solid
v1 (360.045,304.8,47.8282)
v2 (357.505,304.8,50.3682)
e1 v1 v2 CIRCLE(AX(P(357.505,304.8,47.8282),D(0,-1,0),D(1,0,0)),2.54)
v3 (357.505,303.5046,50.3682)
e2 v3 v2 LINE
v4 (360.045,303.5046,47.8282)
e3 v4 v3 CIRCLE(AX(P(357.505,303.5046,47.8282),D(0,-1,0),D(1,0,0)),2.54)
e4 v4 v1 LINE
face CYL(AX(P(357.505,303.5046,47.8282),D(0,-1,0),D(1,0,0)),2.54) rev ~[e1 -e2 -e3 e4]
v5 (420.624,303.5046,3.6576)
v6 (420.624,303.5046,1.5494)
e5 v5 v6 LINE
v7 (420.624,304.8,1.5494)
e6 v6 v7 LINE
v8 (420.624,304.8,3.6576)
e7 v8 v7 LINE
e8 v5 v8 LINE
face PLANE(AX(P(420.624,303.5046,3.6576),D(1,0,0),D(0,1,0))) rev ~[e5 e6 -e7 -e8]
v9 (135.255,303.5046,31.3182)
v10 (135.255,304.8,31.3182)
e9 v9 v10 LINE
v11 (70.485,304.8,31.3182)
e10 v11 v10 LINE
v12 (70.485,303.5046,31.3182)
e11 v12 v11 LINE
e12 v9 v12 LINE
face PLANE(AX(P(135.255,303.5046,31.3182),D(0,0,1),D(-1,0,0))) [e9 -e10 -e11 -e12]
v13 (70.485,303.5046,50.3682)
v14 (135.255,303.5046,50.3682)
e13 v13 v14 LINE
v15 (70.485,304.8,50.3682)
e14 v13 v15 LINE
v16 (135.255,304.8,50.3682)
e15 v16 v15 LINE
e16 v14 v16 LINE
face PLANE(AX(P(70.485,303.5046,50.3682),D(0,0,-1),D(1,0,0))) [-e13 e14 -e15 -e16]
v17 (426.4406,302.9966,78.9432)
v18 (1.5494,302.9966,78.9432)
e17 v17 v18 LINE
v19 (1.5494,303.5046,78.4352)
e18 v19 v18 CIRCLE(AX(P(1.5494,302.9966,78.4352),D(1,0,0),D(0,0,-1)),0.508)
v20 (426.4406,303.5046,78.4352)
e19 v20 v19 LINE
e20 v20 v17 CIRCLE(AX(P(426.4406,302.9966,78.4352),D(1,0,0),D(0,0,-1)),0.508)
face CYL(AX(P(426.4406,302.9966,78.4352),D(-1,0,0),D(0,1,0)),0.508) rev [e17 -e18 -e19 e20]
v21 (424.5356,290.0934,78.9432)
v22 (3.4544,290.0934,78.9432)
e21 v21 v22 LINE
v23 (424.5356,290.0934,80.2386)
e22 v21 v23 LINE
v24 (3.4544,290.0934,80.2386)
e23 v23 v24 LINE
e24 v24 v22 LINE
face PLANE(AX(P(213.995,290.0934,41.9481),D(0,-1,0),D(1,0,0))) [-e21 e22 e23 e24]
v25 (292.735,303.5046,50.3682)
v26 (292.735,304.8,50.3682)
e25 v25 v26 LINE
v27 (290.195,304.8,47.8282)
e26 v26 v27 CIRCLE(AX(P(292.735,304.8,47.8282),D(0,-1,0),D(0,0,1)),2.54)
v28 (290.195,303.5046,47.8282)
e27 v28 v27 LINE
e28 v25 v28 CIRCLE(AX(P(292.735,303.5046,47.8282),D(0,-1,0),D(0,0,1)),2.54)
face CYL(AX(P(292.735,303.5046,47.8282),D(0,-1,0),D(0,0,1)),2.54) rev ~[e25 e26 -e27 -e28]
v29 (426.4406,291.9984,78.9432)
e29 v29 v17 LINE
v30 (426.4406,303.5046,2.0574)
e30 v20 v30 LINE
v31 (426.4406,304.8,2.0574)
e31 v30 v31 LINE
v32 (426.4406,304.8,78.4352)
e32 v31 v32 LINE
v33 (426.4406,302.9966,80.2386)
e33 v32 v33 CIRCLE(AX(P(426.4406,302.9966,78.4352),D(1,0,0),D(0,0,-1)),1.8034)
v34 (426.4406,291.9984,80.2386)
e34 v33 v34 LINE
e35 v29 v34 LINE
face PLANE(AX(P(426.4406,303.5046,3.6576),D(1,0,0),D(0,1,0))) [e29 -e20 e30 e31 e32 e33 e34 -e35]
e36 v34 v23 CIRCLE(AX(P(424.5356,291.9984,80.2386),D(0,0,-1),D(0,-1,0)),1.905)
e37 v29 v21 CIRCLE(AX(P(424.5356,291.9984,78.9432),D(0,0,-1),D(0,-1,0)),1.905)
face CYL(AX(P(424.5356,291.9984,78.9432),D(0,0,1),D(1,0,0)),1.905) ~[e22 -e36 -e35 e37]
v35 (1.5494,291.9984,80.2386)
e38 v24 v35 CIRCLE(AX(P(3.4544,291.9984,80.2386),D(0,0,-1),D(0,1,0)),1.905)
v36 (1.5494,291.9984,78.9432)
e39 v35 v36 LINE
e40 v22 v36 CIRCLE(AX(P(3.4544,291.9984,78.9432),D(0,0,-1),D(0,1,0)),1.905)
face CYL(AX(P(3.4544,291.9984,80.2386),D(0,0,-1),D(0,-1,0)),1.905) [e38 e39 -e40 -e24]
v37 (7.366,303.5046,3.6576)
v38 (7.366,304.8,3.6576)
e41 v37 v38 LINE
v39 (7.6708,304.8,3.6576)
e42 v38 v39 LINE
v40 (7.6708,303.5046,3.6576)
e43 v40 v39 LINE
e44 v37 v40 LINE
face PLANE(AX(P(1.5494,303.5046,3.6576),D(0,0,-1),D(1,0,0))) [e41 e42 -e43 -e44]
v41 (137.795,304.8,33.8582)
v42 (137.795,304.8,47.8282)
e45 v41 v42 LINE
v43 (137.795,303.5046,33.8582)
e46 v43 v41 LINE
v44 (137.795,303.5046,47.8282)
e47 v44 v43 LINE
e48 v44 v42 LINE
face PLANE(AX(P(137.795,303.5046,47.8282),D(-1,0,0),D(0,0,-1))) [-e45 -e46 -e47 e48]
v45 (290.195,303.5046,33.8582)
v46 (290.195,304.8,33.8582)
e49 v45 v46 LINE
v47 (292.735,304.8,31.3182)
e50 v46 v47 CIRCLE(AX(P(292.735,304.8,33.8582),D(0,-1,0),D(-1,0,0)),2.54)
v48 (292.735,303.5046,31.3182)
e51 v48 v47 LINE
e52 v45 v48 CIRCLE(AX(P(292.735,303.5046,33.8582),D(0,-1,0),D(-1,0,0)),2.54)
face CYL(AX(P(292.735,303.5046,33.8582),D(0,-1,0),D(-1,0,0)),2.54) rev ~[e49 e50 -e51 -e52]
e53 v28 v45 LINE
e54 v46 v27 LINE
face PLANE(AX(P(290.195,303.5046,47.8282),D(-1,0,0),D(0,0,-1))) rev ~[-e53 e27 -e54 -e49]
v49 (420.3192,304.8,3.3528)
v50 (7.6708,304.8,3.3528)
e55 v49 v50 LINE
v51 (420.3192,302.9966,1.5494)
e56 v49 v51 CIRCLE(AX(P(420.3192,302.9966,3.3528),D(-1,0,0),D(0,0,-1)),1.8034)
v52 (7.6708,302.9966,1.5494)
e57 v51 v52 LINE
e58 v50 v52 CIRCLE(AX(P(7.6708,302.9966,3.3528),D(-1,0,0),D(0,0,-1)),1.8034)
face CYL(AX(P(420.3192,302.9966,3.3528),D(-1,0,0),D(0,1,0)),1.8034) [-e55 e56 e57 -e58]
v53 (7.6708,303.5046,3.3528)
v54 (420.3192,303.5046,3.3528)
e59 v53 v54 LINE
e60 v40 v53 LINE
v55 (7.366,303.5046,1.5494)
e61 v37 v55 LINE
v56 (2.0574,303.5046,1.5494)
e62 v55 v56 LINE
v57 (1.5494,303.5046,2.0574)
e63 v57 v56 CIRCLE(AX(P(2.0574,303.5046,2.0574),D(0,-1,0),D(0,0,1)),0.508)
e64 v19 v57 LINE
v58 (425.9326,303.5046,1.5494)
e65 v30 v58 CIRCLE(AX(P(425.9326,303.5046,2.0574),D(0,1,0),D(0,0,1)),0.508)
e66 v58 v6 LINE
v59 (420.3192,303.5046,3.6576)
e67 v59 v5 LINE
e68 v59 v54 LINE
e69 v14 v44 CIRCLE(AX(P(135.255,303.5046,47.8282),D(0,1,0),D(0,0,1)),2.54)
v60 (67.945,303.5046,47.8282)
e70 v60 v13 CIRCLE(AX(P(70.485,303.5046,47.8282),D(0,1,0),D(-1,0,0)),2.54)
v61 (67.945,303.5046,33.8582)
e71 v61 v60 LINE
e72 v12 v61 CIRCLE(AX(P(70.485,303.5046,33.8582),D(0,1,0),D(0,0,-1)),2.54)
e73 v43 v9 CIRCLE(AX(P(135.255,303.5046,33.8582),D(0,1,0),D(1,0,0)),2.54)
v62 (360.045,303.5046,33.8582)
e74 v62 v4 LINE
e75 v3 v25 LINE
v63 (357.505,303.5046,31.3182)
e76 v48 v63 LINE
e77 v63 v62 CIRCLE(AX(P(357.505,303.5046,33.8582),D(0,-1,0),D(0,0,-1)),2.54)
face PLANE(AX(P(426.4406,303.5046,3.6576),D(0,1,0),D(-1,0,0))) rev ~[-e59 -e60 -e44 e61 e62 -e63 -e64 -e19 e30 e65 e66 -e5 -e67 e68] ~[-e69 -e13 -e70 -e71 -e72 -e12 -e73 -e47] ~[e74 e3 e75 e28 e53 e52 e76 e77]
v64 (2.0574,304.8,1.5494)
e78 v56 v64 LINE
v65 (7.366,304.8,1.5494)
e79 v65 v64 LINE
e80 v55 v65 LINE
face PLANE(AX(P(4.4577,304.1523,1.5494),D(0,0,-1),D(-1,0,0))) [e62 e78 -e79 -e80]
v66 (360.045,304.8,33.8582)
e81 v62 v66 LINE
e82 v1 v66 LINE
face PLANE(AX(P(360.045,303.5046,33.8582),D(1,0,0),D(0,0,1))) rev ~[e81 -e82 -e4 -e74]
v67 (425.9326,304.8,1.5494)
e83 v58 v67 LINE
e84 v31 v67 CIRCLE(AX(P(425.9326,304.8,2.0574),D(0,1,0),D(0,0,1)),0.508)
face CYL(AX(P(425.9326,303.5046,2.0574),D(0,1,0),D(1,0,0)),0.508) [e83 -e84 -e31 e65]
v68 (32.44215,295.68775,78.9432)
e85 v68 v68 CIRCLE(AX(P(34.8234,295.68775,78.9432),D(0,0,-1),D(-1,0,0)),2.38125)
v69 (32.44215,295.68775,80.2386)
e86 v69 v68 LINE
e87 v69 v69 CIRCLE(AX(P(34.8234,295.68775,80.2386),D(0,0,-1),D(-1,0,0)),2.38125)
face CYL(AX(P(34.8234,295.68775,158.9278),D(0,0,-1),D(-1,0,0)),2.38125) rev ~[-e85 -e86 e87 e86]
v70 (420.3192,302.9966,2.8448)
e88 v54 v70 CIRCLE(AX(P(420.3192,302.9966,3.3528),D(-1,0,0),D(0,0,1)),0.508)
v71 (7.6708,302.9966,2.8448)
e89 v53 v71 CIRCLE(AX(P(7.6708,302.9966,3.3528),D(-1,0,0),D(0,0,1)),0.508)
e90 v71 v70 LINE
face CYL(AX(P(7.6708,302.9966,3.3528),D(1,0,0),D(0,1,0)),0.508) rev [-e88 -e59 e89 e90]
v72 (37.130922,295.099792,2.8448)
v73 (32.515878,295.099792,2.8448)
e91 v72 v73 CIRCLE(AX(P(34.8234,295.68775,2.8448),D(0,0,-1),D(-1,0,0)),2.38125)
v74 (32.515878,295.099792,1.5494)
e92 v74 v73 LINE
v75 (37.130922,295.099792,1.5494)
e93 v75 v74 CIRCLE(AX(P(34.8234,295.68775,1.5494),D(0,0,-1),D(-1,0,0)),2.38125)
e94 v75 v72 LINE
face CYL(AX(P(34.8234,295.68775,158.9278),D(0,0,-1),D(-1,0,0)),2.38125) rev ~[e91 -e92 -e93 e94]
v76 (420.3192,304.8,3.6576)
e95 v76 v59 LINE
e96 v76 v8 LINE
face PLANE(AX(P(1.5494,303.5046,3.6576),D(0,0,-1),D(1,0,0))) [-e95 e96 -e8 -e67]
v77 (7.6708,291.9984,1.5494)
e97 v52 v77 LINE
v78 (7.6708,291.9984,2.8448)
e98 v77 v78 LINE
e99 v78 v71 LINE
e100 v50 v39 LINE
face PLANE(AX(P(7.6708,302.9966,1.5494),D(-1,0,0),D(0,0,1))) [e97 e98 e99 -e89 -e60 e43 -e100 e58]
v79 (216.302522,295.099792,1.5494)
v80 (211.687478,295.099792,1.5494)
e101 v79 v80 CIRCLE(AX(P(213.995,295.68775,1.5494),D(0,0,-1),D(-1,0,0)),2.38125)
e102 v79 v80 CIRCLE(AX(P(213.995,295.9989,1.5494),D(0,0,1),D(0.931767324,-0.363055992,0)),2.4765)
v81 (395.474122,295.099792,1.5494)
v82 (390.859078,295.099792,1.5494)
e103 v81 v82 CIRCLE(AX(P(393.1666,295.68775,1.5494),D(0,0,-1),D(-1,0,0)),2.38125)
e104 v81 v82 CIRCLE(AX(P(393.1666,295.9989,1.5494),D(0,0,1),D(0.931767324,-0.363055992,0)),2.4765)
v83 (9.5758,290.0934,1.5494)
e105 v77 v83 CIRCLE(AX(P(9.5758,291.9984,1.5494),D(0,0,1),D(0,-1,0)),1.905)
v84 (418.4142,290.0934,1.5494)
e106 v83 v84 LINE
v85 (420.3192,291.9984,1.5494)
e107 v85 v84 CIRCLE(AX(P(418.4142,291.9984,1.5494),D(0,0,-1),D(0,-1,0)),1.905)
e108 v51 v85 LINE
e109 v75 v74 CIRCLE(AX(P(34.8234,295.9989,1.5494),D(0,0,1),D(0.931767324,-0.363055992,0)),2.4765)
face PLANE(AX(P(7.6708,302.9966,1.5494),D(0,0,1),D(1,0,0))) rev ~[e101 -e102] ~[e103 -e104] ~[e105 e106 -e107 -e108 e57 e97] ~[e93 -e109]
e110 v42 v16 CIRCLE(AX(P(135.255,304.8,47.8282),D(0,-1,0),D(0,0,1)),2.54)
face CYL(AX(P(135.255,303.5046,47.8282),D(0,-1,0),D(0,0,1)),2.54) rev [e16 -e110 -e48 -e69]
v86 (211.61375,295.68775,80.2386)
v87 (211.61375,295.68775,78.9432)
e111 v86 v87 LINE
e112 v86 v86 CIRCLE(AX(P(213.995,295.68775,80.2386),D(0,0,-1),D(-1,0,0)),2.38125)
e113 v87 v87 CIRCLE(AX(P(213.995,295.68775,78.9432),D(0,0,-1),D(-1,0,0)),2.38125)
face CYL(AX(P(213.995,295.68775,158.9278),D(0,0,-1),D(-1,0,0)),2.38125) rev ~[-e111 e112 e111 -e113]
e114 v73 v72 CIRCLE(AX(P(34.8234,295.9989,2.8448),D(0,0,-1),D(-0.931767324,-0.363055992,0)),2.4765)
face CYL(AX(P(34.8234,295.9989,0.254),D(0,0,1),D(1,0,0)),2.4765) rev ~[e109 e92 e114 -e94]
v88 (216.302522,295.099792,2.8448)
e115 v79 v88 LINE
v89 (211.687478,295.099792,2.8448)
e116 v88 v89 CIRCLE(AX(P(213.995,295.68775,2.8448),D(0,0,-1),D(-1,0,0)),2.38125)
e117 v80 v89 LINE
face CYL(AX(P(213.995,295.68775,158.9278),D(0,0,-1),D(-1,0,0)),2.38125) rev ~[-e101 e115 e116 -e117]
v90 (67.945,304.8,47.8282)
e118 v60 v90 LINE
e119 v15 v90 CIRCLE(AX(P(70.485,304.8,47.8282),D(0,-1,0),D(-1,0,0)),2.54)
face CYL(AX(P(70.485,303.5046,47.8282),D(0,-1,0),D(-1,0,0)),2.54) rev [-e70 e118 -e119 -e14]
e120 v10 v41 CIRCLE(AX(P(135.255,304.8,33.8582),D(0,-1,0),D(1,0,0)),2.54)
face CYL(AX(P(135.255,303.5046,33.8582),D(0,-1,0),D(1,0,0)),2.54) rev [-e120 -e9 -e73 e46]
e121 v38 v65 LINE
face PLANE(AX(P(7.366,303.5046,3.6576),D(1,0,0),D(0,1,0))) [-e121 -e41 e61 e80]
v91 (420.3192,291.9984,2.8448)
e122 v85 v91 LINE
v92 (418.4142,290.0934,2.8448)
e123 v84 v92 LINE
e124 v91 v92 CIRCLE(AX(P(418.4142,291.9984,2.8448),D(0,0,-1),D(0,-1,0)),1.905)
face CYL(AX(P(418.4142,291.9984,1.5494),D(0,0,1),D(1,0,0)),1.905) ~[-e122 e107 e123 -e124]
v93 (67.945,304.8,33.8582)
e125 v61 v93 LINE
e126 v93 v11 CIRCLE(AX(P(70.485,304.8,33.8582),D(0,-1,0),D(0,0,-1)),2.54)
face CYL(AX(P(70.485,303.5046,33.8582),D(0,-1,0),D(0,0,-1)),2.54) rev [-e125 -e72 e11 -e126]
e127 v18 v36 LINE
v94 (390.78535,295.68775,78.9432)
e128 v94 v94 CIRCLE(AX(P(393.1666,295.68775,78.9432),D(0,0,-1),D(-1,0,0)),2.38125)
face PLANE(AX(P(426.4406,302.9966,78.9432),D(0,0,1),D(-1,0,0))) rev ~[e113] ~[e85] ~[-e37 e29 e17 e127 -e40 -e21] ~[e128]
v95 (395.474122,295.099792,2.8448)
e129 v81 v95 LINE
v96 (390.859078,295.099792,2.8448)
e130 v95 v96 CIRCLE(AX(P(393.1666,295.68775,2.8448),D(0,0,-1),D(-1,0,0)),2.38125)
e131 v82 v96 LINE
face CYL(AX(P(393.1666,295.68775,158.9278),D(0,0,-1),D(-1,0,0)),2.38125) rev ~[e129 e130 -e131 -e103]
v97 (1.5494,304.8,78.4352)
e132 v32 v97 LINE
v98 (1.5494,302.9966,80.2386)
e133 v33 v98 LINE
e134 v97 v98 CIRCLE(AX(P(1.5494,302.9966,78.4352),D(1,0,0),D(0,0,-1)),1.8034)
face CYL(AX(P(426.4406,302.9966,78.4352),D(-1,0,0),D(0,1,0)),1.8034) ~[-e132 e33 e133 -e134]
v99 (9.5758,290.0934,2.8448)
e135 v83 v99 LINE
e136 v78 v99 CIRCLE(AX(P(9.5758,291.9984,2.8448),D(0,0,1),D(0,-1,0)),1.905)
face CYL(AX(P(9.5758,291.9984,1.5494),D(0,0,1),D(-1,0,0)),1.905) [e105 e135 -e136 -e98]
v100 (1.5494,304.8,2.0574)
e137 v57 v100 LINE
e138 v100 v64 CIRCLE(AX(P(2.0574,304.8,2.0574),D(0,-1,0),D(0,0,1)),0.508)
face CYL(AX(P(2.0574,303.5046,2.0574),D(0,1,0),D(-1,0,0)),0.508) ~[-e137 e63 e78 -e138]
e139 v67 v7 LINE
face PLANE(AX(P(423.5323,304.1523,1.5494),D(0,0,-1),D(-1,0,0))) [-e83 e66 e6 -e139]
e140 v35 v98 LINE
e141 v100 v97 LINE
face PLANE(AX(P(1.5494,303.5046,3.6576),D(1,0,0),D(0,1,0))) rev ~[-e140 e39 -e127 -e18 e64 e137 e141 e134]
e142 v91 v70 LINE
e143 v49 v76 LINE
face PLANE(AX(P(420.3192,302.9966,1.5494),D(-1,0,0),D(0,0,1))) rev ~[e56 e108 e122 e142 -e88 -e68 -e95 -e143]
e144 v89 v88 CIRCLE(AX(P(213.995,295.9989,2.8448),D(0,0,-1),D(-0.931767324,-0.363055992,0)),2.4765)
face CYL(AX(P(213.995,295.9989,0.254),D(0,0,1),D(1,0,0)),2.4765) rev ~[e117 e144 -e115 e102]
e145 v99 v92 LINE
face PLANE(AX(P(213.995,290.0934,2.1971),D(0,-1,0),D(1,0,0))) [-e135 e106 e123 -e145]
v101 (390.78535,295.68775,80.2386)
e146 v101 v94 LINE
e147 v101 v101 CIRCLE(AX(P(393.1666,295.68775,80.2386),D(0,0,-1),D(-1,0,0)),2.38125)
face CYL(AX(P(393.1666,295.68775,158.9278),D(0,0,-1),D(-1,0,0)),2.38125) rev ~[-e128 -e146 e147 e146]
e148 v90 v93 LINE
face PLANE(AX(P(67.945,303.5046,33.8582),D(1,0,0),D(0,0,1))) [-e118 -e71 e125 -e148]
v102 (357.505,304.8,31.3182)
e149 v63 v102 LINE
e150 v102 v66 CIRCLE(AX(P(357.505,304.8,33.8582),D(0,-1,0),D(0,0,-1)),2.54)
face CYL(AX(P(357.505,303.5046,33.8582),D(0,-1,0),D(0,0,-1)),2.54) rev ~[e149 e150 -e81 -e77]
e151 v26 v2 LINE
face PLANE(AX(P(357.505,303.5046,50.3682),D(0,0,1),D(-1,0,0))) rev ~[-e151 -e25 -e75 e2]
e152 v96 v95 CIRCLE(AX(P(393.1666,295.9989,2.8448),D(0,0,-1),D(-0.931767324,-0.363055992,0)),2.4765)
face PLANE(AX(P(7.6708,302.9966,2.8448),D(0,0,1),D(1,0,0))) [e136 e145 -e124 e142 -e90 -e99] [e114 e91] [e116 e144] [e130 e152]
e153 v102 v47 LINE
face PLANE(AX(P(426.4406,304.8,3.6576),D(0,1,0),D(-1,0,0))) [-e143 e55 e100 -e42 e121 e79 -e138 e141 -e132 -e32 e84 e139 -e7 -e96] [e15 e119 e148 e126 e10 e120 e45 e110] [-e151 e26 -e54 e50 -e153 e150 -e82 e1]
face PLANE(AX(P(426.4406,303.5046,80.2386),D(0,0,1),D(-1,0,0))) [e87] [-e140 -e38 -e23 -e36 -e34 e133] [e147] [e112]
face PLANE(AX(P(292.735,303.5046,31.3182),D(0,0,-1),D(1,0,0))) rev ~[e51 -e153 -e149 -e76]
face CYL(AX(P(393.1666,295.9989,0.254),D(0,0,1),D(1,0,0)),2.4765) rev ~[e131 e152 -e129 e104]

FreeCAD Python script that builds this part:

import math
import FreeCAD as App
import Part
import Sketcher

V = App.Vector
Q = App.Units.Quantity


def edges_at(feature, points):
    """Names of the edges that pass closest to the given points."""
    edges = feature.Shape.Edges
    near = lambda p: min(range(len(edges)), key=lambda i: edges[i].distToShape(Part.Vertex(*p))[0])
    return sorted({f"Edge{near(p) + 1}" for p in points})


def add_polygon(sketch, points):
    """Adds a closed chain of lines whose ends are joined by coincident constraints."""
    first, n = sketch.GeometryCount, len(points)
    for a, b in zip(points, points[1:] + points[:1]):
        sketch.addGeometry(Part.LineSegment(App.Vector(*a, 0), App.Vector(*b, 0)), False)
    for i in range(n):
        sketch.addConstraint(Sketcher.Constraint("Coincident", first + i, 2, first + (i + 1) % n, 1))

doc = App.newDocument("Part")
body = doc.addObject("PartDesign::Body", "Body")

sketch1 = body.newObject("Sketcher::SketchObject", "Sketch")
sketch1.AttachmentSupport = (doc.getObject("XZ_Plane"), [""])
sketch1.MapMode = "FlatFace"
sketch1.AttachmentOffset = App.Placement(V(0, 0, -11.421 * 25.4), App.Rotation())
add_polygon(sketch1, [(426, 80), (2, 80), (2, 4), (426, 4)])
sketch1.addConstraint(Sketcher.Constraint("Horizontal", 0))
sketch1.addConstraint(Sketcher.Constraint("Vertical", 1))
sketch1.addConstraint(Sketcher.Constraint("Horizontal", 2))
sketch1.addConstraint(Sketcher.Constraint("Vertical", 3))
sketch1.addConstraint(Sketcher.Constraint("DistanceX", 0, 2, 0, 1, Q("16.728 in")))
sketch1.addConstraint(Sketcher.Constraint("DistanceY", 1, 2, 1, 1, Q("3.015 in")))
sketch1.addConstraint(Sketcher.Constraint("DistanceX", -1, 1, 0, 2, Q("0.061 in")))
sketch1.addConstraint(Sketcher.Constraint("DistanceY", -1, 1, 0, 2, Q("3.159 in")))
pad1 = body.newObject("PartDesign::Pad", "Pad")
pad1.Profile = sketch1
pad1.Length = Q("0.508 in")
pad1.Reversed = True

sketch2 = body.newObject("Sketcher::SketchObject", "Sketch001")
sketch2.AttachmentSupport = (doc.getObject("XZ_Plane"), [""])
sketch2.MapMode = "FlatFace"
sketch2.AttachmentOffset = App.Placement(V(0, 0, -11.929 * 25.4), App.Rotation())
add_polygon(sketch2, [(426, 4), (2, 4), (2, 80), (426, 80)])
sketch2.addConstraint(Sketcher.Constraint("Horizontal", 0))
sketch2.addConstraint(Sketcher.Constraint("Vertical", 1))
sketch2.addConstraint(Sketcher.Constraint("Horizontal", 2))
sketch2.addConstraint(Sketcher.Constraint("Vertical", 3))
sketch2.addConstraint(Sketcher.Constraint("DistanceX", 0, 2, 0, 1, Q("16.728 in")))
sketch2.addConstraint(Sketcher.Constraint("DistanceY", 1, 1, 1, 2, Q("3.015 in")))
sketch2.addConstraint(Sketcher.Constraint("DistanceX", -1, 1, 0, 2, Q("0.061 in")))
sketch2.addConstraint(Sketcher.Constraint("DistanceY", -1, 1, 0, 2, Q("0.144 in")))
pad2 = body.newObject("PartDesign::Pad", "Pad001")
pad2.Profile = sketch2
pad2.Length = Q("0.02 in")
pad2.Reversed = True

sketch3 = body.newObject("Sketcher::SketchObject", "Sketch002")
sketch3.AttachmentSupport = (doc.getObject("XZ_Plane"), [""])
sketch3.MapMode = "FlatFace"
sketch3.AttachmentOffset = App.Placement(V(0, 0, -11.421 * 25.4), App.Rotation())
add_polygon(sketch3, [(2, 4), (426, 4), (426, 79), (2, 79)])
sketch3.addConstraint(Sketcher.Constraint("Horizontal", 0))
sketch3.addConstraint(Sketcher.Constraint("Vertical", 1))
sketch3.addConstraint(Sketcher.Constraint("Horizontal", 2))
sketch3.addConstraint(Sketcher.Constraint("Vertical", 3))
sketch3.addConstraint(Sketcher.Constraint("DistanceX", 0, 1, 0, 2, Q("16.728 in")))
sketch3.addConstraint(Sketcher.Constraint("DistanceY", 1, 1, 1, 2, Q("2.964 in")))
sketch3.addConstraint(Sketcher.Constraint("DistanceX", -1, 1, 0, 2, Q("16.789 in")))
sketch3.addConstraint(Sketcher.Constraint("DistanceY", -1, 1, 0, 2, Q("0.144 in")))
pocket1 = body.newObject("PartDesign::Pocket", "Pocket")
pocket1.Profile = sketch3
pocket1.Length = Q("0.508 in")

sketch4 = body.newObject("Sketcher::SketchObject", "Sketch003")
sketch4.AttachmentSupport = (doc.getObject("XZ_Plane"), [""])
sketch4.MapMode = "FlatFace"
sketch4.AttachmentOffset = App.Placement(V(0, 0, -11.949 * 25.4), App.Rotation())
add_polygon(sketch4, [(426, 4), (2, 4), (2, 80), (426, 80)])
sketch4.addConstraint(Sketcher.Constraint("Horizontal", 0))
sketch4.addConstraint(Sketcher.Constraint("Vertical", 1))
sketch4.addConstraint(Sketcher.Constraint("Horizontal", 2))
sketch4.addConstraint(Sketcher.Constraint("Vertical", 3))
sketch4.addConstraint(Sketcher.Constraint("DistanceX", 0, 2, 0, 1, Q("16.728 in")))
sketch4.addConstraint(Sketcher.Constraint("DistanceY", 1, 1, 1, 2, Q("3.015 in")))
sketch4.addConstraint(Sketcher.Constraint("DistanceX", -1, 1, 0, 2, Q("0.061 in")))
sketch4.addConstraint(Sketcher.Constraint("DistanceY", -1, 1, 0, 2, Q("0.144 in")))
pad3 = body.newObject("PartDesign::Pad", "Pad002")
pad3.Profile = sketch4
pad3.Length = Q("0.051 in")
pad3.Reversed = True

sketch5 = body.newObject("Sketcher::SketchObject", "Sketch004")
sketch5.AttachmentSupport = (doc.getObject("XZ_Plane"), [""])
sketch5.MapMode = "FlatFace"
sketch5.AttachmentOffset = App.Placement(V(0, 0, -11.929 * 25.4), App.Rotation())
add_polygon(sketch5, [(2, 4), (426, 4), (426, 79), (2, 79)])
sketch5.addConstraint(Sketcher.Constraint("Horizontal", 0))
sketch5.addConstraint(Sketcher.Constraint("Vertical", 1))
sketch5.addConstraint(Sketcher.Constraint("Horizontal", 2))
sketch5.addConstraint(Sketcher.Constraint("Vertical", 3))
sketch5.addConstraint(Sketcher.Constraint("DistanceX", 0, 1, 0, 2, Q("16.728 in")))
sketch5.addConstraint(Sketcher.Constraint("DistanceY", 1, 1, 1, 2, Q("2.964 in")))
sketch5.addConstraint(Sketcher.Constraint("DistanceX", -1, 1, 0, 2, Q("16.789 in")))
sketch5.addConstraint(Sketcher.Constraint("DistanceY", -1, 1, 0, 2, Q("0.144 in")))
pocket2 = body.newObject("PartDesign::Pocket", "Pocket001")
pocket2.Profile = sketch5
pocket2.Length = Q("0.02 in")

sketch6 = body.newObject("Sketcher::SketchObject", "Sketch005")
sketch6.AttachmentSupport = (doc.getObject("XY_Plane"), [""])
sketch6.MapMode = "FlatFace"
sketch6.AttachmentOffset = App.Placement(V(0, 0, 0.144 * 25.4), App.Rotation())
add_polygon(sketch6, [(420.3, 304.8), (420.3, 303), (7.7, 303), (7.7, 304.8)])
sketch6.addConstraint(Sketcher.Constraint("Vertical", 0))
sketch6.addConstraint(Sketcher.Constraint("Horizontal", 1))
sketch6.addConstraint(Sketcher.Constraint("Vertical", 2))
sketch6.addConstraint(Sketcher.Constraint("Horizontal", 3))
sketch6.addConstraint(Sketcher.Constraint("DistanceY", -1, 1, 2, 2, Q("12 in")))
sketch6.addConstraint(Sketcher.Constraint("DistanceX", 1, 2, 1, 1, Q("16.246 in")))
sketch6.addConstraint(Sketcher.Constraint("DistanceY", 0, 2, 0, 1, Q("0.071 in")))
sketch6.addConstraint(Sketcher.Constraint("DistanceX", -1, 1, 0, 2, Q("16.548 in")))
pad4 = body.newObject("PartDesign::Pad", "Pad003")
pad4.Profile = sketch6
pad4.Length = Q("0.012 in")
pad4.Reversed = True

sketch7 = body.newObject("Sketcher::SketchObject", "Sketch006")
sketch7.AttachmentSupport = (doc.getObject("XY_Plane"), [""])
sketch7.MapMode = "FlatFace"
sketch7.AttachmentOffset = App.Placement(V(0, 0, 0.132 * 25.4), App.Rotation())
add_polygon(sketch7, [(420.3, 304.8), (420.3, 303), (7.7, 303), (7.7, 304.8)])
sketch7.addConstraint(Sketcher.Constraint("Vertical", 0))
sketch7.addConstraint(Sketcher.Constraint("Horizontal", 1))
sketch7.addConstraint(Sketcher.Constraint("Vertical", 2))
sketch7.addConstraint(Sketcher.Constraint("Horizontal", 3))
sketch7.addConstraint(Sketcher.Constraint("DistanceY", -1, 1, 2, 2, Q("12 in")))
sketch7.addConstraint(Sketcher.Constraint("DistanceX", 1, 2, 1, 1, Q("16.246 in")))
sketch7.addConstraint(Sketcher.Constraint("DistanceY", 0, 2, 0, 1, Q("0.071 in")))
sketch7.addConstraint(Sketcher.Constraint("DistanceX", -1, 1, 0, 2, Q("16.548 in")))
pad5 = body.newObject("PartDesign::Pad", "Pad004")
pad5.Profile = sketch7
pad5.Length = Q("0.02 in")
pad5.Reversed = True

sketch8 = body.newObject("Sketcher::SketchObject", "Sketch007")
sketch8.AttachmentSupport = (doc.getObject("XY_Plane"), [""])
sketch8.MapMode = "FlatFace"
sketch8.AttachmentOffset = App.Placement(V(0, 0, 0.144 * 25.4), App.Rotation())
add_polygon(sketch8, [(7.7, 303.5), (7.7, 303), (420.3, 303), (420.3, 303.5)])
sketch8.addConstraint(Sketcher.Constraint("Vertical", 0))
sketch8.addConstraint(Sketcher.Constraint("Horizontal", 1))
sketch8.addConstraint(Sketcher.Constraint("Vertical", 2))
sketch8.addConstraint(Sketcher.Constraint("Horizontal", 3))
sketch8.addConstraint(Sketcher.Constraint("DistanceY", 0, 2, 0, 1, Q("0.02 in")))
sketch8.addConstraint(Sketcher.Constraint("DistanceX", 1, 1, 1, 2, Q("16.246 in")))
sketch8.addConstraint(Sketcher.Constraint("DistanceX", -1, 1, 0, 2, Q("0.302 in")))
sketch8.addConstraint(Sketcher.Constraint("DistanceY", -1, 1, 0, 2, Q("11.929 in")))
pocket3 = body.newObject("PartDesign::Pocket", "Pocket002")
pocket3.Profile = sketch8
pocket3.Length = Q("0.012 in")

sketch9 = body.newObject("Sketcher::SketchObject", "Sketch008")
sketch9.AttachmentSupport = (doc.getObject("XY_Plane"), [""])
sketch9.MapMode = "FlatFace"
sketch9.AttachmentOffset = App.Placement(V(0, 0, 0.112 * 25.4), App.Rotation())
add_polygon(sketch9, [(420.3, 304.8), (420.3, 303), (7.7, 303), (7.7, 304.8)])
sketch9.addConstraint(Sketcher.Constraint("Vertical", 0))
sketch9.addConstraint(Sketcher.Constraint("Horizontal", 1))
sketch9.addConstraint(Sketcher.Constraint("Vertical", 2))
sketch9.addConstraint(Sketcher.Constraint("Horizontal", 3))
sketch9.addConstraint(Sketcher.Constraint("DistanceY", -1, 1, 2, 2, Q("12 in")))
sketch9.addConstraint(Sketcher.Constraint("DistanceX", 1, 2, 1, 1, Q("16.246 in")))
sketch9.addConstraint(Sketcher.Constraint("DistanceY", 0, 2, 0, 1, Q("0.071 in")))
sketch9.addConstraint(Sketcher.Constraint("DistanceX", -1, 1, 0, 2, Q("16.548 in")))
pad6 = body.newObject("PartDesign::Pad", "Pad005")
pad6.Profile = sketch9
pad6.Length = Q("0.051 in")
pad6.Reversed = True

sketch10 = body.newObject("Sketcher::SketchObject", "Sketch009")
sketch10.AttachmentSupport = (doc.getObject("XY_Plane"), [""])
sketch10.MapMode = "FlatFace"
sketch10.AttachmentOffset = App.Placement(V(0, 0, 0.132 * 25.4), App.Rotation())
add_polygon(sketch10, [(7.7, 303.5), (7.7, 303), (420.3, 303), (420.3, 303.5)])
sketch10.addConstraint(Sketcher.Constraint("Vertical", 0))
sketch10.addConstraint(Sketcher.Constraint("Horizontal", 1))
sketch10.addConstraint(Sketcher.Constraint("Vertical", 2))
sketch10.addConstraint(Sketcher.Constraint("Horizontal", 3))
sketch10.addConstraint(Sketcher.Constraint("DistanceY", 0, 2, 0, 1, Q("0.02 in")))
sketch10.addConstraint(Sketcher.Constraint("DistanceX", 1, 1, 1, 2, Q("16.246 in")))
sketch10.addConstraint(Sketcher.Constraint("DistanceX", -1, 1, 0, 2, Q("0.302 in")))
sketch10.addConstraint(Sketcher.Constraint("DistanceY", -1, 1, 0, 2, Q("11.929 in")))
pocket4 = body.newObject("PartDesign::Pocket", "Pocket003")
pocket4.Profile = sketch10
pocket4.Length = Q("0.02 in")

sketch11 = body.newObject("Sketcher::SketchObject", "Sketch010")
sketch11.AttachmentSupport = (doc.getObject("XZ_Plane"), [""])
sketch11.MapMode = "FlatFace"
sketch11.AttachmentOffset = App.Placement(V(0, 0, -11.929 * 25.4), App.Rotation())
add_polygon(sketch11, [(7.7, 2.8), (7.7, 1.5), (420.3, 1.5), (420.3, 2.8)])
sketch11.addConstraint(Sketcher.Constraint("Vertical", 0))
sketch11.addConstraint(Sketcher.Constraint("Horizontal", 1))
sketch11.addConstraint(Sketcher.Constraint("Vertical", 2))
sketch11.addConstraint(Sketcher.Constraint("Horizontal", 3))
sketch11.addConstraint(Sketcher.Constraint("DistanceX", 1, 1, 1, 2, Q("16.246 in")))
sketch11.addConstraint(Sketcher.Constraint("DistanceY", 0, 2, 0, 1, Q("0.051 in")))
sketch11.addConstraint(Sketcher.Constraint("DistanceX", -1, 1, 0, 2, Q("0.302 in")))
sketch11.addConstraint(Sketcher.Constraint("DistanceY", -1, 1, 0, 2, Q("0.061 in")))
pad7 = body.newObject("PartDesign::Pad", "Pad006")
pad7.Profile = sketch11
pad7.Length = Q("0.508 in")

sketch12 = body.newObject("Sketcher::SketchObject", "Sketch011")
sketch12.AttachmentSupport = (doc.getObject("XY_Plane"), [""])
sketch12.MapMode = "FlatFace"
sketch12.AttachmentOffset = App.Placement(V(0, 0, 0.144 * 25.4), App.Rotation())
add_polygon(sketch12, [(7.4, 304.8), (7.4, 303.5), (1.5, 303.5), (1.5, 304.8)])
sketch12.addConstraint(Sketcher.Constraint("Vertical", 0))
sketch12.addConstraint(Sketcher.Constraint("Horizontal", 1))
sketch12.addConstraint(Sketcher.Constraint("Vertical", 2))
sketch12.addConstraint(Sketcher.Constraint("Horizontal", 3))
sketch12.addConstraint(Sketcher.Constraint("DistanceY", -1, 1, 2, 2, Q("12 in")))
sketch12.addConstraint(Sketcher.Constraint("DistanceX", 1, 2, 1, 1, Q("0.229 in")))
sketch12.addConstraint(Sketcher.Constraint("DistanceY", 0, 2, 0, 1, Q("0.051 in")))
sketch12.addConstraint(Sketcher.Constraint("DistanceX", -1, 1, 0, 2, Q("0.29 in")))
pad8 = body.newObject("PartDesign::Pad", "Pad007")
pad8.Profile = sketch12
pad8.Length = Q("0.083 in")
pad8.Reversed = True

sketch13 = body.newObject("Sketcher::SketchObject", "Sketch012")
sketch13.AttachmentSupport = (doc.getObject("XY_Plane"), [""])
sketch13.MapMode = "FlatFace"
sketch13.AttachmentOffset = App.Placement(V(0, 0, 0.144 * 25.4), App.Rotation())
add_polygon(sketch13, [(426.4, 304.8), (426.4, 303.5), (420.6, 303.5), (420.6, 304.8)])
sketch13.addConstraint(Sketcher.Constraint("Vertical", 0))
sketch13.addConstraint(Sketcher.Constraint("Horizontal", 1))
sketch13.addConstraint(Sketcher.Constraint("Vertical", 2))
sketch13.addConstraint(Sketcher.Constraint("Horizontal", 3))
sketch13.addConstraint(Sketcher.Constraint("DistanceY", -1, 1, 2, 2, Q("12 in")))
sketch13.addConstraint(Sketcher.Constraint("DistanceX", 1, 2, 1, 1, Q("0.229 in")))
sketch13.addConstraint(Sketcher.Constraint("DistanceY", 0, 2, 0, 1, Q("0.051 in")))
sketch13.addConstraint(Sketcher.Constraint("DistanceX", -1, 1, 1, 2, Q("16.56 in")))
pad9 = body.newObject("PartDesign::Pad", "Pad008")
pad9.Profile = sketch13
pad9.Length = Q("0.083 in")
pad9.Reversed = True

sketch14 = body.newObject("Sketcher::SketchObject", "Sketch013")
sketch14.AttachmentSupport = (doc.getObject("XY_Plane"), [""])
sketch14.MapMode = "FlatFace"
sketch14.AttachmentOffset = App.Placement(V(0, 0, 0.061 * 25.4), App.Rotation())
sketch14.addGeometry(Part.Circle(V(214, 296, 0), V(0, 0, 1), 2.5), False)
sketch14.addGeometry(Part.Circle(V(393.2, 296, 0), V(0, 0, 1), 2.5), False)
sketch14.addGeometry(Part.Circle(V(34.8, 296, 0), V(0, 0, 1), 2.5), False)
sketch14.addConstraint(Sketcher.Constraint("Equal", 0, 1))
sketch14.addConstraint(Sketcher.Constraint("Equal", 1, 2))
sketch14.addConstraint(Sketcher.Constraint("Horizontal", 0, 3, 1, 3))
sketch14.addConstraint(Sketcher.Constraint("Horizontal", 1, 3, 2, 3))
sketch14.addConstraint(Sketcher.Constraint("Diameter", 0, Q("0.195 in")))
sketch14.addConstraint(Sketcher.Constraint("DistanceX", -1, 1, 0, 3, Q("8.425 in")))
sketch14.addConstraint(Sketcher.Constraint("DistanceX", -1, 1, 1, 3, Q("15.479 in")))
sketch14.addConstraint(Sketcher.Constraint("DistanceX", -1, 1, 2, 3, Q("1.371 in")))
sketch14.addConstraint(Sketcher.Constraint("DistanceY", -1, 1, 0, 3, Q("11.6535 in")))
doc.recompute()
hole = body.newObject("PartDesign::Hole", "Hole")
hole.Profile = sketch14
hole.ThreadType = "None"
hole.Diameter = Q("0.195 in")
hole.DepthType = "Dimension"
hole.Depth = Q("0.051 in")
hole.DrillPoint = "Flat"
hole.Reversed = True

sketch15 = body.newObject("Sketcher::SketchObject", "Sketch014")
sketch15.AttachmentSupport = (doc.getObject("XY_Plane"), [""])
sketch15.MapMode = "FlatFace"
sketch15.AttachmentOffset = App.Placement(V(0, 0, 3.159 * 25.4), App.Rotation())
sketch15.addGeometry(Part.Circle(V(34.8, 295.7, 0), V(0, 0, 1), 2.4), False)
sketch15.addGeometry(Part.Circle(V(214, 295.7, 0), V(0, 0, 1), 2.4), False)
sketch15.addGeometry(Part.Circle(V(393.2, 295.7, 0), V(0, 0, 1), 2.4), False)
sketch15.addConstraint(Sketcher.Constraint("Equal", 0, 1))
sketch15.addConstraint(Sketcher.Constraint("Equal", 1, 2))
sketch15.addConstraint(Sketcher.Constraint("Horizontal", 0, 3, 1, 3))
sketch15.addConstraint(Sketcher.Constraint("Horizontal", 1, 3, 2, 3))
sketch15.addConstraint(Sketcher.Constraint("Diameter", 0, Q("0.1875 in")))
sketch15.addConstraint(Sketcher.Constraint("DistanceX", -1, 1, 0, 3, Q("1.371 in")))
sketch15.addConstraint(Sketcher.Constraint("DistanceX", -1, 1, 1, 3, Q("8.425 in")))
sketch15.addConstraint(Sketcher.Constraint("DistanceX", -1, 1, 2, 3, Q("15.479 in")))
sketch15.addConstraint(Sketcher.Constraint("DistanceY", -1, 1, 0, 3, Q("295.68775 mm")))
doc.recompute()
hole2 = body.newObject("PartDesign::Hole", "Hole001")
hole2.Profile = sketch15
hole2.ThreadType = "None"
hole2.Diameter = Q("0.1875 in")
hole2.DepthType = "Dimension"
hole2.Depth = Q("3.098 in")
hole2.DrillPoint = "Flat"
doc.recompute()

fillet = body.newObject("PartDesign::Fillet", "Fillet")
fillet.Base = (hole2, edges_at(hole2, [
    (213.995, 303.505, 2.845),
    (1.549, 304.152, 1.549),
    (426.441, 304.152, 1.549),
    (213.995, 303.505, 78.943),
]))
fillet.Radius = Q("0.02 in")
doc.recompute()

fillet2 = body.newObject("PartDesign::Fillet", "Fillet001")
fillet2.Base = (fillet, edges_at(fillet, [(213.995, 304.8, 1.549), (213.995, 304.8, 80.239)]))
fillet2.Radius = Q("0.071 in")
doc.recompute()

fillet3 = body.newObject("PartDesign::Fillet", "Fillet002")
fillet3.Base = (fillet2, edges_at(fillet2, [
    (420.319, 290.093, 2.197),
    (7.671, 290.093, 2.197),
    (426.441, 290.093, 79.591),
    (1.549, 290.093, 79.591),
]))
fillet3.Radius = Q("0.075 in")

sketch16 = body.newObject("Sketcher::SketchObject", "Sketch015")
sketch16.AttachmentSupport = (doc.getObject("XZ_Plane"), [""])
sketch16.MapMode = "FlatFace"
sketch16.AttachmentOffset = App.Placement(V(0, 0, -11.949 * 25.4), App.Rotation())
sketch16.addGeometry(Part.LineSegment(V(357.5, 50.4, 0), V(292.7, 50.4, 0)), False)
sketch16.addGeometry(Part.ArcOfCircle(Part.Circle(V(292.7, 47.8, 0), V(0, 0, 1), 2.5), math.radians(90), math.radians(180)), False)
sketch16.addGeometry(Part.LineSegment(V(290.2, 47.8, 0), V(290.2, 33.9, 0)), False)
sketch16.addGeometry(Part.ArcOfCircle(Part.Circle(V(292.7, 33.9, 0), V(0, 0, 1), 2.5), math.radians(-180), math.radians(-90)), False)
sketch16.addGeometry(Part.LineSegment(V(292.7, 31.3, 0), V(357.5, 31.3, 0)), False)
sketch16.addGeometry(Part.ArcOfCircle(Part.Circle(V(357.5, 33.9, 0), V(0, 0, 1), 2.5), math.radians(-90), math.radians(0)), False)
sketch16.addGeometry(Part.LineSegment(V(360, 33.9, 0), V(360, 47.8, 0)), False)
sketch16.addGeometry(Part.ArcOfCircle(Part.Circle(V(357.5, 47.8, 0), V(0, 0, 1), 2.5), math.radians(0), math.radians(90)), False)
sketch16.addGeometry(Part.LineSegment(V(137.8, 33.9, 0), V(137.8, 47.8, 0)), False)
sketch16.addGeometry(Part.ArcOfCircle(Part.Circle(V(135.3, 47.8, 0), V(0, 0, 1), 2.5), math.radians(0), math.radians(90)), False)
sketch16.addGeometry(Part.LineSegment(V(135.3, 50.4, 0), V(70.5, 50.4, 0)), False)
sketch16.addGeometry(Part.ArcOfCircle(Part.Circle(V(70.5, 47.8, 0), V(0, 0, 1), 2.5), math.radians(90), math.radians(180)), False)
sketch16.addGeometry(Part.LineSegment(V(67.9, 47.8, 0), V(67.9, 33.9, 0)), False)
sketch16.addGeometry(Part.ArcOfCircle(Part.Circle(V(70.5, 33.9, 0), V(0, 0, 1), 2.5), math.radians(-180), math.radians(-90)), False)
sketch16.addGeometry(Part.LineSegment(V(70.5, 31.3, 0), V(135.3, 31.3, 0)), False)
sketch16.addGeometry(Part.ArcOfCircle(Part.Circle(V(135.3, 33.9, 0), V(0, 0, 1), 2.5), math.radians(-90), math.radians(0)), False)
sketch16.addConstraint(Sketcher.Constraint("Tangent", 0, 2, 1, 1))
sketch16.addConstraint(Sketcher.Constraint("Tangent", 1, 2, 2, 1))
sketch16.addConstraint(Sketcher.Constraint("Tangent", 2, 2, 3, 1))
sketch16.addConstraint(Sketcher.Constraint("Tangent", 3, 2, 4, 1))
sketch16.addConstraint(Sketcher.Constraint("Tangent", 4, 2, 5, 1))
sketch16.addConstraint(Sketcher.Constraint("Tangent", 5, 2, 6, 1))
sketch16.addConstraint(Sketcher.Constraint("Tangent", 6, 2, 7, 1))
sketch16.addConstraint(Sketcher.Constraint("Tangent", 7, 2, 0, 1))
sketch16.addConstraint(Sketcher.Constraint("Tangent", 8, 2, 9, 1))
sketch16.addConstraint(Sketcher.Constraint("Tangent", 9, 2, 10, 1))
sketch16.addConstraint(Sketcher.Constraint("Tangent", 10, 2, 11, 1))
sketch16.addConstraint(Sketcher.Constraint("Tangent", 11, 2, 12, 1))
sketch16.addConstraint(Sketcher.Constraint("Tangent", 12, 2, 13, 1))
sketch16.addConstraint(Sketcher.Constraint("Tangent", 13, 2, 14, 1))
sketch16.addConstraint(Sketcher.Constraint("Tangent", 14, 2, 15, 1))
sketch16.addConstraint(Sketcher.Constraint("Tangent", 15, 2, 8, 1))
sketch16.addConstraint(Sketcher.Constraint("Horizontal", 0))
sketch16.addConstraint(Sketcher.Constraint("Vertical", 2))
sketch16.addConstraint(Sketcher.Constraint("Horizontal", 4))
sketch16.addConstraint(Sketcher.Constraint("Vertical", 6))
sketch16.addConstraint(Sketcher.Constraint("Vertical", 8))
sketch16.addConstraint(Sketcher.Constraint("Horizontal", 10))
sketch16.addConstraint(Sketcher.Constraint("Vertical", 12))
sketch16.addConstraint(Sketcher.Constraint("Horizontal", 14))
sketch16.addConstraint(Sketcher.Constraint("Equal", 1, 3))
sketch16.addConstraint(Sketcher.Constraint("Equal", 3, 5))
sketch16.addConstraint(Sketcher.Constraint("Equal", 5, 7))
sketch16.addConstraint(Sketcher.Constraint("Equal", 7, 9))
sketch16.addConstraint(Sketcher.Constraint("Equal", 9, 11))
sketch16.addConstraint(Sketcher.Constraint("Equal", 11, 13))
sketch16.addConstraint(Sketcher.Constraint("Equal", 13, 15))
sketch16.addConstraint(Sketcher.Constraint("Horizontal", 7, 3, 9, 3))
sketch16.addConstraint(Sketcher.Constraint("Horizontal", 5, 3, 13, 3))
sketch16.addConstraint(Sketcher.Constraint("Equal", 4, 10))
sketch16.addConstraint(Sketcher.Constraint("Radius", 1, Q("0.1 in")))
sketch16.addConstraint(Sketcher.Constraint("DistanceX", 8, 2, 1, 2, Q("6 in")))
sketch16.addConstraint(Sketcher.Constraint("DistanceX", 0, 2, 0, 1, Q("2.55 in")))
sketch16.addConstraint(Sketcher.Constraint("DistanceY", 2, 2, 2, 1, Q("0.55 in")))
sketch16.addConstraint(Sketcher.Constraint("DistanceX", -1, 1, 1, 3, Q("11.525 in")))
sketch16.addConstraint(Sketcher.Constraint("DistanceY", -1, 1, 1, 3, Q("1.883 in")))
pocket5 = body.newObject("PartDesign::Pocket", "Pocket004")
pocket5.Profile = sketch16
pocket5.Type = "ThroughAll"

doc.recompute()
